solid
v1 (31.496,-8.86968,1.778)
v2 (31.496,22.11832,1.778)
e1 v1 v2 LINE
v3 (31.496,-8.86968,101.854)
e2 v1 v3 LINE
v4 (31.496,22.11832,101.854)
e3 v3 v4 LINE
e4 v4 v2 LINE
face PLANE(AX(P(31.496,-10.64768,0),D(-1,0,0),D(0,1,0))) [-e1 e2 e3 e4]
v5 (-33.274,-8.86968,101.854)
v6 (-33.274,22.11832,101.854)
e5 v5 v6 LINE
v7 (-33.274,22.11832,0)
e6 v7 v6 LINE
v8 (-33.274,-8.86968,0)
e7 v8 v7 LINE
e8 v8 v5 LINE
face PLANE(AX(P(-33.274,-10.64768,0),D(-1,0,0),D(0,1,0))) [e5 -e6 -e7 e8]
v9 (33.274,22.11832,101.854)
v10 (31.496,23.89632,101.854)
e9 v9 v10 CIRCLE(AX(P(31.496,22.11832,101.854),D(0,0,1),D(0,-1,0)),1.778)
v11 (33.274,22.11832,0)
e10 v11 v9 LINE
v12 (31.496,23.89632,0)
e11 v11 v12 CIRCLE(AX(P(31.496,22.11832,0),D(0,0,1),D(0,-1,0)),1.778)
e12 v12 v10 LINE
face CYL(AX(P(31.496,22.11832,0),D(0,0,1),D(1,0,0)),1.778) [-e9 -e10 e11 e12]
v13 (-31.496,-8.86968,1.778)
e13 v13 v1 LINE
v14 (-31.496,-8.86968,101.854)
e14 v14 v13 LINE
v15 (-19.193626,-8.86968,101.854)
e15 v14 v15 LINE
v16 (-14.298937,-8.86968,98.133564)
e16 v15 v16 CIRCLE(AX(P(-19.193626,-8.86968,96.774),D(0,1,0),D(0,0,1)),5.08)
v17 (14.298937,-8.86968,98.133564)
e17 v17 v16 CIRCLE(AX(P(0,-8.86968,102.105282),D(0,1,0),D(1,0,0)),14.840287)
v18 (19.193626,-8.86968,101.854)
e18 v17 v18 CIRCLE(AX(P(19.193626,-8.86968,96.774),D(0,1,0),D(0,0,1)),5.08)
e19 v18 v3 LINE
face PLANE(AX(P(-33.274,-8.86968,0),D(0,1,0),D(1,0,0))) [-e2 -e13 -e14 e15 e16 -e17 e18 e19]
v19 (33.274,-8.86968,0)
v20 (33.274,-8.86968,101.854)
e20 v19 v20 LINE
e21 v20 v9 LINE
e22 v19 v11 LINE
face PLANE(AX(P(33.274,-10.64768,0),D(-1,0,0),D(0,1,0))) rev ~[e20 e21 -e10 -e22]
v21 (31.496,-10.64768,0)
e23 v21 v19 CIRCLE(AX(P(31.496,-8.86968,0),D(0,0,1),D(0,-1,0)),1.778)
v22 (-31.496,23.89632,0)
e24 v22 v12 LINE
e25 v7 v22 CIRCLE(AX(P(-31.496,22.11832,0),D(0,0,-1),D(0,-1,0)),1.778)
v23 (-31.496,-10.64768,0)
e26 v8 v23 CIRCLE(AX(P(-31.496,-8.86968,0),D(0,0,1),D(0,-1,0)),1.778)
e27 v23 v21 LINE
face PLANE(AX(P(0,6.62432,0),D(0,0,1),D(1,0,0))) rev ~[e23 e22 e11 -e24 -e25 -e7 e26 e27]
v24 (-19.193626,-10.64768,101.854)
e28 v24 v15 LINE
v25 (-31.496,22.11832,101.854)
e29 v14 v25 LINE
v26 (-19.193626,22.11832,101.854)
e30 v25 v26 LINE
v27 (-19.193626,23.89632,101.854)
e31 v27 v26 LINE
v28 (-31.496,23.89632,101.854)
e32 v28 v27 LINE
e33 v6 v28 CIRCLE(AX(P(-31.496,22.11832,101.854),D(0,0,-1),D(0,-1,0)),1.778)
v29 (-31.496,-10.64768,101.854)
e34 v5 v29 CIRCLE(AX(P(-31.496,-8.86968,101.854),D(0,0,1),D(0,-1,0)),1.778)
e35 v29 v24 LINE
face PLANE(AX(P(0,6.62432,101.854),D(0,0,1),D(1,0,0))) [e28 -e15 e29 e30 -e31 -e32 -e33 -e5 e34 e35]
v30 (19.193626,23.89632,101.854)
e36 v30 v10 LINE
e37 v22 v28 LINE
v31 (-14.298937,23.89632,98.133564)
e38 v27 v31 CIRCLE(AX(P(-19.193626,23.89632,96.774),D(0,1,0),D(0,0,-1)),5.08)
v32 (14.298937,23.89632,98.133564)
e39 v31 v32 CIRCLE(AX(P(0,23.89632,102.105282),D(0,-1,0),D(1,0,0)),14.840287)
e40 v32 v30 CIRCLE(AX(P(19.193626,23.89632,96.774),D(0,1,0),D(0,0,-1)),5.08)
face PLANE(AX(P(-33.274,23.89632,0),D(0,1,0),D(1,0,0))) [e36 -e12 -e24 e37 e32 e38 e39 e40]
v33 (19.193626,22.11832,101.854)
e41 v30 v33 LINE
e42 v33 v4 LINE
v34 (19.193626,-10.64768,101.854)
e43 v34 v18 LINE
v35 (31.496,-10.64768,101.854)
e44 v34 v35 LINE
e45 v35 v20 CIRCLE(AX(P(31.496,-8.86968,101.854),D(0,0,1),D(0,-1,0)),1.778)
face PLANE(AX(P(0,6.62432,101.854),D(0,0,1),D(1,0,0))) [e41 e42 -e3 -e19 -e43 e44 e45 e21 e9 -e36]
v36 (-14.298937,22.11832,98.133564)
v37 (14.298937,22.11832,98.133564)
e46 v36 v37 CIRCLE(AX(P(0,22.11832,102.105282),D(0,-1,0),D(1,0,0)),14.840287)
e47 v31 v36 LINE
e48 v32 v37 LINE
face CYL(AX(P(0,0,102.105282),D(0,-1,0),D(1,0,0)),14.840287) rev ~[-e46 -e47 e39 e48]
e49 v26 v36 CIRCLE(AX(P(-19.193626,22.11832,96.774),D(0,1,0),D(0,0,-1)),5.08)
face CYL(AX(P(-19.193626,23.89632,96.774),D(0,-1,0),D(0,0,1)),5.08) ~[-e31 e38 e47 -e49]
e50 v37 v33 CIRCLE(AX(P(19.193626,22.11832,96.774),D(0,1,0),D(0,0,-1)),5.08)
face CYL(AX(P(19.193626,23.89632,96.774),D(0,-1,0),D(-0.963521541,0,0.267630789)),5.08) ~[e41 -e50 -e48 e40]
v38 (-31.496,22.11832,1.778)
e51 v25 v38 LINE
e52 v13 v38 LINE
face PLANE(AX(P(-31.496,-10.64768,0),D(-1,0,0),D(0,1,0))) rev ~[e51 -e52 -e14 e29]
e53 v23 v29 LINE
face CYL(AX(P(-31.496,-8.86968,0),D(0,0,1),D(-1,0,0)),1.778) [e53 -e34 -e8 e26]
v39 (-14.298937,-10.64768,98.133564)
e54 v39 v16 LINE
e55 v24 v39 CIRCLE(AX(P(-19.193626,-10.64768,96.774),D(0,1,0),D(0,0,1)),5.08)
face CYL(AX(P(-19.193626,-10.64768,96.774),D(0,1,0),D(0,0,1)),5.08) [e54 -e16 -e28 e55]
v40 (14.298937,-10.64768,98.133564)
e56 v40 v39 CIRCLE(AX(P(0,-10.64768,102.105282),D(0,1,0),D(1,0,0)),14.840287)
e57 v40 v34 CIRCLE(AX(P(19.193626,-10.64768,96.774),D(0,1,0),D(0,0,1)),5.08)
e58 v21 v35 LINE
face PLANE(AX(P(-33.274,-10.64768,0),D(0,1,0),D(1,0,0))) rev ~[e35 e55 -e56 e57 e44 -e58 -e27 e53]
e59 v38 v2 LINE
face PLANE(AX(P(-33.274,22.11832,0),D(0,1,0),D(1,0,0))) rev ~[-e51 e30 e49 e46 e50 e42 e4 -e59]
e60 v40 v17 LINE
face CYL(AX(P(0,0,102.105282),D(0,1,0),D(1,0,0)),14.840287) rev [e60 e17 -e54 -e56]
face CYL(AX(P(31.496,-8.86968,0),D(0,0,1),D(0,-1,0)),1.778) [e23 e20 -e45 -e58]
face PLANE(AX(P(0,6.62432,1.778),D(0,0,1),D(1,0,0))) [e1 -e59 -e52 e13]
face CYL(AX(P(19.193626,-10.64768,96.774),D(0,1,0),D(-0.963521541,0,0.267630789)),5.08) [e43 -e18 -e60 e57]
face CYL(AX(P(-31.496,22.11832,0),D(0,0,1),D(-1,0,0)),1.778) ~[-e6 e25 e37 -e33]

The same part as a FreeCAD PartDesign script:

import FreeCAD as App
import Part
import Sketcher
Q = App.Units.Quantity


def edges_at(feature, points):
    """Names of the edges that pass closest to the given points."""
    edges = feature.Shape.Edges
    near = lambda p: min(range(len(edges)), key=lambda i: edges[i].distToShape(Part.Vertex(*p))[0])
    return sorted({f"Edge{near(p) + 1}" for p in points})


def faces_at(feature, points):
    """Names of the faces that lie closest to the given points."""
    faces = feature.Shape.Faces
    near = lambda p: min(range(len(faces)), key=lambda i: faces[i].distToShape(Part.Vertex(*p))[0])
    return sorted({f"Face{near(p) + 1}" for p in points})

doc = App.newDocument("Part")
body = doc.addObject("PartDesign::Body", "Body")

# Sketch on XY plane
sketch1 = body.newObject("Sketcher::SketchObject", "Sketch")
sketch1.AttachmentSupport = (doc.getObject("XY_Plane"), [""])
sketch1.MapMode = "FlatFace"
sketch1.addGeometry([
    Part.LineSegment(App.Vector(-33.274, 23.89632, 0), App.Vector(-33.274, -10.64768, 0)),
    Part.LineSegment(App.Vector(-33.274, -10.64768, 0), App.Vector(33.274, -10.64768, 0)),
    Part.LineSegment(App.Vector(33.274, -10.64768, 0), App.Vector(33.274, 23.89632, 0)),
    Part.LineSegment(App.Vector(33.274, 23.89632, 0), App.Vector(-33.274, 23.89632, 0)),
], False)
sketch1.addConstraint([
    Sketcher.Constraint("Coincident", 0, 2, 1, 1),
    Sketcher.Constraint("Coincident", 1, 2, 2, 1),
    Sketcher.Constraint("Coincident", 2, 2, 3, 1),
    Sketcher.Constraint("Coincident", 3, 2, 0, 1),
    Sketcher.Constraint("Vertical", 0),
    Sketcher.Constraint("Horizontal", 1),
    Sketcher.Constraint("Vertical", 2),
    Sketcher.Constraint("Horizontal", 3),
    Sketcher.Constraint("DistanceX", 1, 1, 1, 2, Q("2.62 in")),
    Sketcher.Constraint("DistanceY", 0, 2, 0, 1, Q("1.36 in")),
    Sketcher.Constraint("DistanceX", 0, 2, -1, 1, Q("1.31 in")),
    Sketcher.Constraint("DistanceY", 0, 2, -1, 1, Q("0.4192 in")),
])
pad1 = body.newObject("PartDesign::Pad", "Pad")
pad1.Profile = sketch1
pad1.Length = Q("4.01 in")
doc.recompute()

thickness = body.newObject("PartDesign::Thickness", "Thickness")
thickness.Base = (pad1, faces_at(pad1, [(0, 6.624, 101.854)]))
thickness.Value = Q("0.07 in")
thickness.Reversed = True
thickness.Join = "Arc"
doc.recompute()

fillet = body.newObject("PartDesign::Fillet", "Fillet")
fillet.Base = (thickness, edges_at(thickness, [
    (-33.274, 23.896, 50.927),
    (-33.274, -10.648, 50.927),
    (33.274, -10.648, 50.927),
    (33.274, 23.896, 50.927),
]))
fillet.Radius = Q("0.07 in")

# Sketch on XZ plane
sketch2 = body.newObject("Sketcher::SketchObject", "Sketch001")
sketch2.AttachmentSupport = (doc.getObject("XZ_Plane"), [""])
sketch2.MapMode = "FlatFace"
sketch2.addGeometry(Part.Circle(App.Vector(0, 102.105282, 0), App.Vector(0, 0, 1), 14.840287), False)
sketch2.addConstraint([
    Sketcher.Constraint("PointOnObject", 0, 3, -2),
    Sketcher.Constraint("Diameter", 0, 29.680575),
    Sketcher.Constraint("DistanceY", -1, 1, 0, 3, 102.105282),
])
pocket1 = body.newObject("PartDesign::Pocket", "Pocket")
pocket1.Profile = sketch2
pocket1.Type = "ThroughAll"

# Sketch on XZ plane
sketch3 = body.newObject("Sketcher::SketchObject", "Sketch002")
sketch3.AttachmentSupport = (doc.getObject("XZ_Plane"), [""])
sketch3.MapMode = "FlatFace"
sketch3.addGeometry(Part.Circle(App.Vector(0, 102.105282, 0), App.Vector(0, 0, 1), 14.840287), False)
sketch3.addConstraint([
    Sketcher.Constraint("PointOnObject", 0, 3, -2),
    Sketcher.Constraint("Diameter", 0, 29.680575),
    Sketcher.Constraint("DistanceY", -1, 1, 0, 3, 102.105282),
])
pocket2 = body.newObject("PartDesign::Pocket", "Pocket001")
pocket2.Profile = sketch3
pocket2.Length = Q("1 in")
pocket2.Reversed = True
doc.recompute()

fillet2 = body.newObject("PartDesign::Fillet", "Fillet001")
fillet2.Base = (pocket2, edges_at(pocket2, [
    (-14.838, 23.007, 101.854),
    (14.838, 23.007, 101.854),
    (14.838, -9.759, 101.854),
    (-14.838, -9.759, 101.854),
]))
fillet2.Radius = Q("0.2 in")

doc.recompute()
